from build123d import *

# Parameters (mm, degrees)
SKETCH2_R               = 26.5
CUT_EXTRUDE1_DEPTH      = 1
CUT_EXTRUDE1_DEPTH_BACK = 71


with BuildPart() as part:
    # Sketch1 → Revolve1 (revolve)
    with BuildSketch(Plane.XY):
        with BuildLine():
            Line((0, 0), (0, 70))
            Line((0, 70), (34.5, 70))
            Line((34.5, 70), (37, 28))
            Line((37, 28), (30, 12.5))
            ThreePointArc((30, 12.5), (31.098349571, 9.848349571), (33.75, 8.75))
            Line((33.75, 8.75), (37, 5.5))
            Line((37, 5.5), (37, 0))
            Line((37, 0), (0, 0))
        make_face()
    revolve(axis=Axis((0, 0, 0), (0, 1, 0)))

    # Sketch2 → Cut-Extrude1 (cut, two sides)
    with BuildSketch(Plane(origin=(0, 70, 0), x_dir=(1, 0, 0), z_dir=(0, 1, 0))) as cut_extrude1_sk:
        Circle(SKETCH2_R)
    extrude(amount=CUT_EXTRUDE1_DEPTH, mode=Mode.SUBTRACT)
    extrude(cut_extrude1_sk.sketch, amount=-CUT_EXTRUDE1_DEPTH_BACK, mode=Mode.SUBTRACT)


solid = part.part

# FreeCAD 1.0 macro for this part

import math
import FreeCAD as App
import Part
import Sketcher
Q = App.Units.Quantity

doc = App.newDocument("Part")
body = doc.addObject("PartDesign::Body", "Body")

# Sketch on XY plane
sketch1 = doc.addObject("Sketcher::SketchObject", "Sketch")
body.addObject(sketch1)
sketch1.AttachmentSupport = (doc.XY_Plane, [""])
sketch1.MapMode = "FlatFace"
sketch1.addGeometry(Part.LineSegment(App.Vector(0, 70, 0), App.Vector(0, 0, 0)), False)
sketch1.addGeometry(Part.LineSegment(App.Vector(0, 0, 0), App.Vector(37, 0, 0)), False)
sketch1.addGeometry(Part.LineSegment(App.Vector(37, 0, 0), App.Vector(37, 5.5, 0)), False)
sketch1.addGeometry(Part.LineSegment(App.Vector(37, 5.5, 0), App.Vector(33.8, 8.8, 0)), False)
sketch1.addGeometry(Part.ArcOfCircle(Part.Circle(App.Vector(33.8, 12.5, 0), App.Vector(0, 0, 1), 3.8), math.radians(-180), math.radians(-90)), False)
sketch1.addGeometry(Part.LineSegment(App.Vector(30, 12.5, 0), App.Vector(37, 28, 0)), False)
sketch1.addGeometry(Part.LineSegment(App.Vector(37, 28, 0), App.Vector(34.5, 70, 0)), False)
sketch1.addGeometry(Part.LineSegment(App.Vector(34.5, 70, 0), App.Vector(0, 70, 0)), False)
sketch1.addConstraint(Sketcher.Constraint("Coincident", 0, 2, 1, 1))
sketch1.addConstraint(Sketcher.Constraint("Coincident", 1, 2, 2, 1))
sketch1.addConstraint(Sketcher.Constraint("Coincident", 2, 2, 3, 1))
sketch1.addConstraint(Sketcher.Constraint("Coincident", 3, 2, 4, 2))
sketch1.addConstraint(Sketcher.Constraint("Coincident", 4, 1, 5, 1))
sketch1.addConstraint(Sketcher.Constraint("Coincident", 5, 2, 6, 1))
sketch1.addConstraint(Sketcher.Constraint("Coincident", 6, 2, 7, 1))
sketch1.addConstraint(Sketcher.Constraint("Coincident", 7, 2, 0, 1))
sketch1.addConstraint(Sketcher.Constraint("Vertical", 0))
sketch1.addConstraint(Sketcher.Constraint("Horizontal", 1))
sketch1.addConstraint(Sketcher.Constraint("Vertical", 2))
sketch1.addConstraint(Sketcher.Constraint("Horizontal", 7))
sketch1.addConstraint(Sketcher.Constraint("Coincident", 0, 2, -1, 1))
sketch1.addConstraint(Sketcher.Constraint("Vertical", 4, 3, 3, 2))
sketch1.addConstraint(Sketcher.Constraint("Vertical", 2, 2, 5, 2))
sketch1.addConstraint(Sketcher.Constraint("DistanceX", 1, 1, 1, 2, 37.0))
sketch1.addConstraint(Sketcher.Constraint("DistanceY", 0, 2, 0, 1, 70.0))
sketch1.addConstraint(Sketcher.Constraint("Angle", 3, Q("135 deg")))
sketch1.addConstraint(Sketcher.Constraint("Radius", 4, 3.75))
sketch1.addConstraint(Sketcher.Constraint("DistanceX", 7, 2, 7, 1, 34.5))
sketch1.addConstraint(Sketcher.Constraint("DistanceY", 2, 1, 2, 2, 5.5))
sketch1.addConstraint(Sketcher.Constraint("DistanceX", -1, 1, 4, 1, 30.0))
sketch1.addConstraint(Sketcher.Constraint("DistanceY", -1, 1, 5, 2, 28.0))
sketch1.addConstraint(Sketcher.Constraint("DistanceY", 2, 2, 4, 1, 7.0))
revolution = doc.addObject("PartDesign::Revolution", "Revolution")
body.addObject(revolution)
revolution.Profile = sketch1
revolution.ReferenceAxis = (sketch1, ["V_Axis"])
revolution.Angle = 360

# Sketch on XZ plane
sketch2 = doc.addObject("Sketcher::SketchObject", "Sketch001")
body.addObject(sketch2)
sketch2.AttachmentSupport = (doc.XZ_Plane, [""])
sketch2.MapMode = "FlatFace"
sketch2.AttachmentOffset = App.Placement(App.Vector(0, 0, -70), App.Rotation())
sketch2.addGeometry(Part.Circle(App.Vector(0, 0, 0), App.Vector(0, 0, 1), 26), False)
sketch2.addConstraint(Sketcher.Constraint("Coincident", 0, 3, -1, 1))
sketch2.addConstraint(Sketcher.Constraint("Diameter", 0, 53.0))
pocket1 = doc.addObject("PartDesign::Pocket", "Pocket")
body.addObject(pocket1)
pocket1.Profile = sketch2
pocket1.Type = "ThroughAll"
pocket1.Midplane = True

doc.recompute()
